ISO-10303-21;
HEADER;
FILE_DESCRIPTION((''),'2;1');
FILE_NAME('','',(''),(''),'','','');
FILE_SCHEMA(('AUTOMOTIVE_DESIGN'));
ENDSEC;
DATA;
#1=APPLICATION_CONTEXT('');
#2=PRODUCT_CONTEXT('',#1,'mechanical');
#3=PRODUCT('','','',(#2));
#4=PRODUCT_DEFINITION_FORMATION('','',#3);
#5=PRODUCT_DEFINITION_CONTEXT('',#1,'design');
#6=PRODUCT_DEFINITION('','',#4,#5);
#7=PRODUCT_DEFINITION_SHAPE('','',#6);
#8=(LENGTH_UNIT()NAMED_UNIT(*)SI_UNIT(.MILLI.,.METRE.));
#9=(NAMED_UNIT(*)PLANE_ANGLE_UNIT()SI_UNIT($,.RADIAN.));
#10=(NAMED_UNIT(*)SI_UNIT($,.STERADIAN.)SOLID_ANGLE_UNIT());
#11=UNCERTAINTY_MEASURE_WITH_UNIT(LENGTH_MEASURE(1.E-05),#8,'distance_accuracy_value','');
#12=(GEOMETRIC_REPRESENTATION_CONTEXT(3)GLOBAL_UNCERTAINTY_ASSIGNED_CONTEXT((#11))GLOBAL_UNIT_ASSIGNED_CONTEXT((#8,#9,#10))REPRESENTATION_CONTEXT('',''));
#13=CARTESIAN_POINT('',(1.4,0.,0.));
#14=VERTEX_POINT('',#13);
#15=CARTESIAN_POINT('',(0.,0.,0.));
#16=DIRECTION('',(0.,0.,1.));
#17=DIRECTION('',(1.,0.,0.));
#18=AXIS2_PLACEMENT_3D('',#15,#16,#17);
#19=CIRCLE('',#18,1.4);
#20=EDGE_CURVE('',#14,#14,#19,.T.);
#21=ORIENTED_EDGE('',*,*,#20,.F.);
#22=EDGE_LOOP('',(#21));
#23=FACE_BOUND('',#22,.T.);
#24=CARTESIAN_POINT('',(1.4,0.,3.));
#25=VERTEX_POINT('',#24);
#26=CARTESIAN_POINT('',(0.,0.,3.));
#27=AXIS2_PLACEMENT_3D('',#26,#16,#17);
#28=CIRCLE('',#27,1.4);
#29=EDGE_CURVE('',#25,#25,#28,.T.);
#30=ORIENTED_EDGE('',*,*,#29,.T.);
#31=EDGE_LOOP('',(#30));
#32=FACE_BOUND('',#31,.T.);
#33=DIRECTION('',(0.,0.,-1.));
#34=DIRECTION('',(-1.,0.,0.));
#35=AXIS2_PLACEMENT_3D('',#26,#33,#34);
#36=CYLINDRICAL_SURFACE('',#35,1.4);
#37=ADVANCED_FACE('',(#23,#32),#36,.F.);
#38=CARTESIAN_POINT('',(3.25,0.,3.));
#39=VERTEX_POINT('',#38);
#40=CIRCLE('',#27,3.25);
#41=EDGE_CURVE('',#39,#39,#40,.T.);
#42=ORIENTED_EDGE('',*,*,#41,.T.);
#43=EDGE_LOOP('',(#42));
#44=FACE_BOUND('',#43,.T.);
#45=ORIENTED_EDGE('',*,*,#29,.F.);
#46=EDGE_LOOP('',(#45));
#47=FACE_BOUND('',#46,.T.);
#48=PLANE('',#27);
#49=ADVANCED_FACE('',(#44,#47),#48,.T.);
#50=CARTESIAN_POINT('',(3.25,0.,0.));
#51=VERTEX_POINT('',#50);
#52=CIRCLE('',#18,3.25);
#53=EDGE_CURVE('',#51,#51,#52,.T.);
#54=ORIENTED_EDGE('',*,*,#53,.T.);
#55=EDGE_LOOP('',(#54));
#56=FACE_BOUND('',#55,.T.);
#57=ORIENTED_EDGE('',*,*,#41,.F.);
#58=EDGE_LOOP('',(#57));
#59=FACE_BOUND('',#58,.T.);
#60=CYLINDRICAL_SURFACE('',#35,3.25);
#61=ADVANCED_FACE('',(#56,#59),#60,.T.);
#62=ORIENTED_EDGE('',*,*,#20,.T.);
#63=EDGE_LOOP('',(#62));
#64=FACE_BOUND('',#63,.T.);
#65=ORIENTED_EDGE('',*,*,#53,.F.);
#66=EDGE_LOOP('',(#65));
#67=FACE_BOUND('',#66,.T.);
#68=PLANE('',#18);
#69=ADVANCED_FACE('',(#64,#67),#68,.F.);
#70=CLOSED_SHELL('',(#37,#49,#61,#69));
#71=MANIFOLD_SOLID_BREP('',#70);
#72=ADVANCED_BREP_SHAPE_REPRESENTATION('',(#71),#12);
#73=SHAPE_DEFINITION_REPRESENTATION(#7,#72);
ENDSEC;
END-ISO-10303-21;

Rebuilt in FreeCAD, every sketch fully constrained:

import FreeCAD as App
import Part
import Sketcher

V = App.Vector
Q = App.Units.Quantity

doc = App.newDocument("Part")
body = doc.addObject("PartDesign::Body", "Body")

# Sketch on XY plane
sketch1 = body.newObject("Sketcher::SketchObject", "Sketch")
sketch1.AttachmentSupport = (doc.getObject("XY_Plane"), [""])
sketch1.MapMode = "FlatFace"
sketch1.addGeometry(Part.Circle(V(0, 0, 0), V(0, 0, 1), 3.2), False)
sketch1.addGeometry(Part.Circle(V(0, 0, 0), V(0, 0, 1), 1.4), False)
sketch1.addConstraint(Sketcher.Constraint("Coincident", 0, 3, -1, 1))
sketch1.addConstraint(Sketcher.Constraint("Coincident", 1, 3, -1, 1))
sketch1.addConstraint(Sketcher.Constraint("Diameter", 0, Q("6.5 mm")))
sketch1.addConstraint(Sketcher.Constraint("Diameter", 1, Q("2.8 mm")))
pad1 = body.newObject("PartDesign::Pad", "Pad")
pad1.Profile = sketch1
pad1.Length = 3

doc.recompute()
